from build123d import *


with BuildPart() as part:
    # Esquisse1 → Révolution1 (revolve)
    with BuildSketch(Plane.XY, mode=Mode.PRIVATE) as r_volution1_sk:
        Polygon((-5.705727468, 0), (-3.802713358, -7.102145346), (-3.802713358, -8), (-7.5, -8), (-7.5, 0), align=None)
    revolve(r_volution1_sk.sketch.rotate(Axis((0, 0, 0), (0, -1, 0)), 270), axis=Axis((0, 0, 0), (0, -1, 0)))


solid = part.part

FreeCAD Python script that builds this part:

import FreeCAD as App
import Part
import Sketcher
from FreeCAD import Vector
Q = App.Units.Quantity


def add_polygon(sketch, points):
    """Adds a closed chain of lines whose ends are joined by coincident constraints."""
    first, n = sketch.GeometryCount, len(points)
    for a, b in zip(points, points[1:] + points[:1]):
        sketch.addGeometry(Part.LineSegment(App.Vector(*a, 0), App.Vector(*b, 0)), False)
    for i in range(n):
        sketch.addConstraint(Sketcher.Constraint("Coincident", first + i, 2, first + (i + 1) % n, 1))

doc = App.newDocument("Part")
body = doc.addObject("PartDesign::Body", "Body")

# Sketch on XY plane
sketch1 = body.newObject("Sketcher::SketchObject", "Sketch")
sketch1.AttachmentSupport = (doc.getObject("XY_Plane"), [""])
sketch1.MapMode = "FlatFace"
add_polygon(sketch1, [(-3.8, -7.1), (-5.7, 0), (-7.5, 0), (-7.5, -8), (-3.8, -8)])  # lines 0-4
sketch1.addConstraint(Sketcher.Constraint("Horizontal", 1))
sketch1.addConstraint(Sketcher.Constraint("Vertical", 2))
sketch1.addConstraint(Sketcher.Constraint("Horizontal", 3))
sketch1.addConstraint(Sketcher.Constraint("Vertical", 4))
sketch1.addConstraint(Sketcher.Constraint("PointOnObject", 0, 2, -1))
sketch1.addConstraint(Sketcher.Constraint("DistanceY", 2, 2, 2, 1, 8.0))
sketch1.addConstraint(Sketcher.Constraint("Angle", 0, Q("105 deg")))
sketch1.addConstraint(Sketcher.Constraint("DistanceX", 1, 2, -1, 1, 7.5))
sketch1.addConstraint(Sketcher.Constraint("Distance", 0, 7.352682))
sketch1.addConstraint(Sketcher.Constraint("DistanceX", 1, 2, 1, 1, 1.794273))
revolution = body.newObject("PartDesign::Revolution", "Revolution")
revolution.Profile = sketch1
revolution.ReferenceAxis = (sketch1, ["V_Axis"])
revolution.Angle = 360

doc.recompute()
